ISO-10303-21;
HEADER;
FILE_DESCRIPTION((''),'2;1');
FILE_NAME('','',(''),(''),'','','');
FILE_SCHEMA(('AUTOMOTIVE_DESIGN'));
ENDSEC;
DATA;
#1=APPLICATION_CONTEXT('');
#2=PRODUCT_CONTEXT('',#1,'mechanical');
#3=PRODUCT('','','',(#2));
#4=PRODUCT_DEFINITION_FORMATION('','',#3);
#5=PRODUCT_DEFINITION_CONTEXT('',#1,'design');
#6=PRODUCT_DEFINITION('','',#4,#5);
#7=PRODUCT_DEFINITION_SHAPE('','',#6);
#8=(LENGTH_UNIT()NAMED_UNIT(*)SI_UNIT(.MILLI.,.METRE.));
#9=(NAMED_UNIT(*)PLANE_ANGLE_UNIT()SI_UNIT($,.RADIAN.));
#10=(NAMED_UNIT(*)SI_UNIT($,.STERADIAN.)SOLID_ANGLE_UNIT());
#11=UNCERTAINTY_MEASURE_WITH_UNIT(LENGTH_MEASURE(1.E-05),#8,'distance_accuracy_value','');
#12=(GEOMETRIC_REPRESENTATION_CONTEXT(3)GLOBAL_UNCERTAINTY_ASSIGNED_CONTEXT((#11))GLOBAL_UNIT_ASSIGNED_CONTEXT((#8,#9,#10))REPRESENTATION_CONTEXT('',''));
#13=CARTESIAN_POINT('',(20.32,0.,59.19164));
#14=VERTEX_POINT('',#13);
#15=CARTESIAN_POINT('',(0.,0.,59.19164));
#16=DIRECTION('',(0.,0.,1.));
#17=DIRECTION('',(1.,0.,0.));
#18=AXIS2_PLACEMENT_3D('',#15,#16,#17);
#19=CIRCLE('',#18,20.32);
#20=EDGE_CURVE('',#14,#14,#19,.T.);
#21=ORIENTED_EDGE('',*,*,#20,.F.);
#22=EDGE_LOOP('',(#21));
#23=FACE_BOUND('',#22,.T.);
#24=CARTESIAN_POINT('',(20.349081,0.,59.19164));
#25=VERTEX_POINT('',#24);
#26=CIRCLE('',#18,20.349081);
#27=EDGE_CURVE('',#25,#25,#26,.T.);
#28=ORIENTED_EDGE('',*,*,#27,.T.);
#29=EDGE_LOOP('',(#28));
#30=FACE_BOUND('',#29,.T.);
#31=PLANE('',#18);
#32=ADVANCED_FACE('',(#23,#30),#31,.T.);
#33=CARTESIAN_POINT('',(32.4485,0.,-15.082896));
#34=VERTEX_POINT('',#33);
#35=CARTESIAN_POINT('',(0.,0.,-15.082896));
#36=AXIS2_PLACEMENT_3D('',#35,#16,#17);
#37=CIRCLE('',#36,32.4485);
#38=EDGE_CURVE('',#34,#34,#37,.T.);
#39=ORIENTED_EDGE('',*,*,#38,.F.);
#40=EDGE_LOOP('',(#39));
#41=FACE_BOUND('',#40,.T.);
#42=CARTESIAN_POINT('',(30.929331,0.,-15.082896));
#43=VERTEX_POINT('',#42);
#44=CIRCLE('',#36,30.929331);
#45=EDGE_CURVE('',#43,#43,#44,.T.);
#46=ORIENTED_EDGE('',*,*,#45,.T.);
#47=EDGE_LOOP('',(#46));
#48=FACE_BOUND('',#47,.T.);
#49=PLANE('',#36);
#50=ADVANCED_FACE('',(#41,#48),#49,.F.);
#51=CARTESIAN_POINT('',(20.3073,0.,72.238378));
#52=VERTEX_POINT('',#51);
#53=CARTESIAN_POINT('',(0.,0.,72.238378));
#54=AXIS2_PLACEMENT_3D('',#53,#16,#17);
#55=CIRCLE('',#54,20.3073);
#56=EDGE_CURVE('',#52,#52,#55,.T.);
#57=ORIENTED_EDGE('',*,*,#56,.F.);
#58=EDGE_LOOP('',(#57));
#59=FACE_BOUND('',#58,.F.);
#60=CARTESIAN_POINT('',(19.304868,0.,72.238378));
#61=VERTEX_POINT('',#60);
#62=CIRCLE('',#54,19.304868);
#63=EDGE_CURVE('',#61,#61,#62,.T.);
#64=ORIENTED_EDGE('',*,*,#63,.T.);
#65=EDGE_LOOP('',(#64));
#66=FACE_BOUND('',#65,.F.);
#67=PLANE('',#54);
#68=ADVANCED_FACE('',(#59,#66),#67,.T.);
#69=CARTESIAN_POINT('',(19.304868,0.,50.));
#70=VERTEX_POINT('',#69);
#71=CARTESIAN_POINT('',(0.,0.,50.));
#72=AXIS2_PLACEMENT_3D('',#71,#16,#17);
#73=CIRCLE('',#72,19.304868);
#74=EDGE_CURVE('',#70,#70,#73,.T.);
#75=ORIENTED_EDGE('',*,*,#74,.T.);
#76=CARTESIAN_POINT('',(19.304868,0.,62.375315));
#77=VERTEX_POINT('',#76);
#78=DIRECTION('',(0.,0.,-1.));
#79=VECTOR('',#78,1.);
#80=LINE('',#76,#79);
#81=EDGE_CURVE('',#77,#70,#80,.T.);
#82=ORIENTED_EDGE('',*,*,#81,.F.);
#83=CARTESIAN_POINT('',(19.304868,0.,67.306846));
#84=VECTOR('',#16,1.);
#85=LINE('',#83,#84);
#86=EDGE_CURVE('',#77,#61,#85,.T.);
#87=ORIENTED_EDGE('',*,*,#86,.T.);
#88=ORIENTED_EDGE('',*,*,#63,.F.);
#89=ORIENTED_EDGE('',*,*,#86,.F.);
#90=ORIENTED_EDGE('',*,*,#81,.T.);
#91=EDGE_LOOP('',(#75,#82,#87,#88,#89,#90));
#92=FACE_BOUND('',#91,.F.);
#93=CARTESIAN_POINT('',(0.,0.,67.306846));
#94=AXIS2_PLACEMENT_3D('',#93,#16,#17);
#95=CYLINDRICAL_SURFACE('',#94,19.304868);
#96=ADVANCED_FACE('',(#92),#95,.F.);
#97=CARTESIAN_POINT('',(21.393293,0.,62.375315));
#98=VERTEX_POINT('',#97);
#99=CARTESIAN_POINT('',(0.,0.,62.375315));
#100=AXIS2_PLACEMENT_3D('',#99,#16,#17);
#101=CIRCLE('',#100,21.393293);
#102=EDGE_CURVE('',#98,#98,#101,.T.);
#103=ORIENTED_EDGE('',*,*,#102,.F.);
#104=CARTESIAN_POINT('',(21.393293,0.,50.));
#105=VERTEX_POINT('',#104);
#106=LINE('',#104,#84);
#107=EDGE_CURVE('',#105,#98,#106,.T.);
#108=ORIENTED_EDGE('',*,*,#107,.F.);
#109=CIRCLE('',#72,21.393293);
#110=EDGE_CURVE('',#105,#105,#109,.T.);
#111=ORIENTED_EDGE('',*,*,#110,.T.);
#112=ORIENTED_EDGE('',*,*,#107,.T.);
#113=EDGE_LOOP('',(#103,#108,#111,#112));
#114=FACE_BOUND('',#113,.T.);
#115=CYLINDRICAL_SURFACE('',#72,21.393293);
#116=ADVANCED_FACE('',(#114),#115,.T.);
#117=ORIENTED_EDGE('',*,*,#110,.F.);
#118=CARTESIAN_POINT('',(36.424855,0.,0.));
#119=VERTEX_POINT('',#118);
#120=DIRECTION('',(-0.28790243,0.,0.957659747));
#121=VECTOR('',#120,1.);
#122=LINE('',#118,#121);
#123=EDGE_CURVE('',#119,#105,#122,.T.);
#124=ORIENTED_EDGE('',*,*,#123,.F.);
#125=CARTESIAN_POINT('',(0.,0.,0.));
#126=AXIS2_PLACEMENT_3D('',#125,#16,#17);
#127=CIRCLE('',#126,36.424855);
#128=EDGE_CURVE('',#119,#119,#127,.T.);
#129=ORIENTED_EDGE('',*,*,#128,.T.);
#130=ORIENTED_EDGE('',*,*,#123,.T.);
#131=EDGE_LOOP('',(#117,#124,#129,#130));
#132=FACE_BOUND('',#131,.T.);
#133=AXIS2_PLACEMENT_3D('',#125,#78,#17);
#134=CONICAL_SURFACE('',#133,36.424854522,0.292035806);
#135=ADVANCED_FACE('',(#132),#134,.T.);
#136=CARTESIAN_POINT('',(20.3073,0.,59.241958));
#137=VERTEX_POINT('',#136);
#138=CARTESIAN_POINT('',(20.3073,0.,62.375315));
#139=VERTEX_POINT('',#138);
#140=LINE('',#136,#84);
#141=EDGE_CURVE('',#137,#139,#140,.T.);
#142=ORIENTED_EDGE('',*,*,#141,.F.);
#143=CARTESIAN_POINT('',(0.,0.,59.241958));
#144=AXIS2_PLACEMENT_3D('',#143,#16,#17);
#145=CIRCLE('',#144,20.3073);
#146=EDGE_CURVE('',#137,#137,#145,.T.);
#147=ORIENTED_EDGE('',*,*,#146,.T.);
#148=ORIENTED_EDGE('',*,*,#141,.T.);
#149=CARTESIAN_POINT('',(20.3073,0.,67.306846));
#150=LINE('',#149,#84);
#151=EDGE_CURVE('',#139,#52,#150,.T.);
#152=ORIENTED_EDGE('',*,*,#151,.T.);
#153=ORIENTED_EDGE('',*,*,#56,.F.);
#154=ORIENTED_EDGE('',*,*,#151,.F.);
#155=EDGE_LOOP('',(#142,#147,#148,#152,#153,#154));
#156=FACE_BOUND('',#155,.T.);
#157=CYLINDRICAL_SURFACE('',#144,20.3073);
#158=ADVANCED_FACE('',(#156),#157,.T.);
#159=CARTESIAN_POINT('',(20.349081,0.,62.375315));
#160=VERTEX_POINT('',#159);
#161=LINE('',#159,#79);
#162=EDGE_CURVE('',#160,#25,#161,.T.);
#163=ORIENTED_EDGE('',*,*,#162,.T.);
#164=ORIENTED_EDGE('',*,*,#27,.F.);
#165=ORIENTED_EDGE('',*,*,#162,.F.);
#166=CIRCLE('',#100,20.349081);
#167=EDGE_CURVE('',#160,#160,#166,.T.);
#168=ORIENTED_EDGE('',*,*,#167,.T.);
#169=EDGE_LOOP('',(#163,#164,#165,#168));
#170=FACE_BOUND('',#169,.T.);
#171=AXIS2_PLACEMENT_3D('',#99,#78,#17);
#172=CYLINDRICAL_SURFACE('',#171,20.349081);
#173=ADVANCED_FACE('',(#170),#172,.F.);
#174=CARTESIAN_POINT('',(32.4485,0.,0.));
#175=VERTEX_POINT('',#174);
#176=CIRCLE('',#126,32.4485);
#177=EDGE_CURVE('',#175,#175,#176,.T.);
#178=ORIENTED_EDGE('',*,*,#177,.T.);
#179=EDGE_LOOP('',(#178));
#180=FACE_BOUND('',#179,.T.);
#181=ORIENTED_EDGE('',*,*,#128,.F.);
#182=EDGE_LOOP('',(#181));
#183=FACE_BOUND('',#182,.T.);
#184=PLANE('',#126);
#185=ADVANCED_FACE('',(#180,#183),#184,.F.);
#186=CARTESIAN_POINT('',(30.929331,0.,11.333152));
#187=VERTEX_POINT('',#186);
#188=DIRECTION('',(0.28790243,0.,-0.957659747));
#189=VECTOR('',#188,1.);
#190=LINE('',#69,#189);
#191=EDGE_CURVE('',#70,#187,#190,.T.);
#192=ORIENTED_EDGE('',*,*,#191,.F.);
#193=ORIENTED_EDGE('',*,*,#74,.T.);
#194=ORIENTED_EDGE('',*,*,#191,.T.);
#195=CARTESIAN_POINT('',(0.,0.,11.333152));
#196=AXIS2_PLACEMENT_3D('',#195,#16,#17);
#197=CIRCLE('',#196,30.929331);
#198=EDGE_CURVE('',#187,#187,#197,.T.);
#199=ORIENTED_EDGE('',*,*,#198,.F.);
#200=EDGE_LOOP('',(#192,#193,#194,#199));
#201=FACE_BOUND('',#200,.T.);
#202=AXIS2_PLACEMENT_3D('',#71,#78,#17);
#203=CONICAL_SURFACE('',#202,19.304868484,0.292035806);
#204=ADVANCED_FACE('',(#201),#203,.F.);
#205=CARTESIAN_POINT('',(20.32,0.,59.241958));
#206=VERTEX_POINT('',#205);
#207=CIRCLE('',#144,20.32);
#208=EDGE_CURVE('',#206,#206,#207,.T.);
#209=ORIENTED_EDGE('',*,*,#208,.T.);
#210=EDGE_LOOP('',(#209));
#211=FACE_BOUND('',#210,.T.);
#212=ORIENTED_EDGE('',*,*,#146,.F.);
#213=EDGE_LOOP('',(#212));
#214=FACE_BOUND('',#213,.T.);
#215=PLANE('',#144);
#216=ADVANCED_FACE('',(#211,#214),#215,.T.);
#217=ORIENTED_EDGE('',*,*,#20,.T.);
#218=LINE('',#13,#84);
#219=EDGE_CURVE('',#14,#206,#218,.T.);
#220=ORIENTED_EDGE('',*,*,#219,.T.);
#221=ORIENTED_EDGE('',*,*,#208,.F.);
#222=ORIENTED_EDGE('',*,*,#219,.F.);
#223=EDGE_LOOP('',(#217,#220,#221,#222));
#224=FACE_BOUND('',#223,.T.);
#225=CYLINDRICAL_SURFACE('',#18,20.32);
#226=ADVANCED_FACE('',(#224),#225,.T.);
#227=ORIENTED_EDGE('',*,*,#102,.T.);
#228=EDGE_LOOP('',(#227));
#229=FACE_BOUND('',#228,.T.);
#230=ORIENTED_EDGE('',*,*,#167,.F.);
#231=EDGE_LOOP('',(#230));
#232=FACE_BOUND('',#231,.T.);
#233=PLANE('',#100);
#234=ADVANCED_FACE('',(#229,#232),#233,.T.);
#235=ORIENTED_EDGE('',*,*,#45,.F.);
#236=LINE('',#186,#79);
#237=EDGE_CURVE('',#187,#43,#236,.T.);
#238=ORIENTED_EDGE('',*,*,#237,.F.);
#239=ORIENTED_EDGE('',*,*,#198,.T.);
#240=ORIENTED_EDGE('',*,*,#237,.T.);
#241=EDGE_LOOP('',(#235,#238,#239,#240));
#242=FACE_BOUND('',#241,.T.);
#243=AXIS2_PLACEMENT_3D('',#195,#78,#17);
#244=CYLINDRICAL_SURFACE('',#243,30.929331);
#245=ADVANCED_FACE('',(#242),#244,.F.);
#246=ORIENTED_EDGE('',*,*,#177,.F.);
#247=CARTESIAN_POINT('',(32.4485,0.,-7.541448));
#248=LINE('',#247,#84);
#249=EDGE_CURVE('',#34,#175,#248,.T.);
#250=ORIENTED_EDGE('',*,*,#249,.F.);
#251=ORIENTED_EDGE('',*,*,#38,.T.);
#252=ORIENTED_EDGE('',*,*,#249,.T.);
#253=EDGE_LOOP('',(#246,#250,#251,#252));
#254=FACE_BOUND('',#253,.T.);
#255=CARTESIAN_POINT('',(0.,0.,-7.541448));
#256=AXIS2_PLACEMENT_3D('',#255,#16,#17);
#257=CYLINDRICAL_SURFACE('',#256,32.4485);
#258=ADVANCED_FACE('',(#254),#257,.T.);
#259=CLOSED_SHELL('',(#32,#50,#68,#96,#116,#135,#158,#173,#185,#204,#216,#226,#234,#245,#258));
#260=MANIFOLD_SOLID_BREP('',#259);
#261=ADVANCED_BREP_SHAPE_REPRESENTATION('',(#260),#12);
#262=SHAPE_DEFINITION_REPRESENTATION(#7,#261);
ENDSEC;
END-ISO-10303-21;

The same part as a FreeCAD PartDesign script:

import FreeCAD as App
import Part
import Sketcher

V = App.Vector
Q = App.Units.Quantity

doc = App.newDocument("Part")
body = doc.addObject("PartDesign::Body", "Body")

# Sketch on XZ plane
sketch1 = doc.addObject("Sketcher::SketchObject", "Sketch")
body.addObject(sketch1)
sketch1.AttachmentSupport = (doc.XZ_Plane, [""])
sketch1.MapMode = "FlatFace"
sketch1.addGeometry(Part.LineSegment(V(36.425, 0, 0), V(21.393, 50, 0)), False)
sketch1.addGeometry(Part.LineSegment(V(21.393, 50, 0), V(21.393, 62.375, 0)), False)
sketch1.addGeometry(Part.LineSegment(V(21.393, 62.375, 0), V(20.349, 62.375, 0)), False)
sketch1.addGeometry(Part.LineSegment(V(20.349, 62.375, 0), V(20.349, 59.192, 0)), False)
sketch1.addGeometry(Part.LineSegment(V(20.349, 59.192, 0), V(20.32, 59.192, 0)), False)
sketch1.addGeometry(Part.LineSegment(V(20.32, 59.192, 0), V(20.32, 59.242, 0)), False)
sketch1.addGeometry(Part.LineSegment(V(20.32, 59.242, 0), V(20.307, 59.242, 0)), False)
sketch1.addGeometry(Part.LineSegment(V(20.307, 59.242, 0), V(20.307, 62.375, 0)), False)
sketch1.addGeometry(Part.LineSegment(V(20.307, 62.375, 0), V(20.307, 72.238, 0)), False)
sketch1.addGeometry(Part.LineSegment(V(20.307, 72.238, 0), V(19.305, 72.238, 0)), False)
sketch1.addGeometry(Part.LineSegment(V(19.305, 72.238, 0), V(19.305, 62.375, 0)), False)
sketch1.addGeometry(Part.LineSegment(V(19.305, 62.375, 0), V(19.305, 50, 0)), False)
sketch1.addGeometry(Part.LineSegment(V(19.305, 50, 0), V(30.929, 11.333, 0)), False)
sketch1.addGeometry(Part.LineSegment(V(30.929, 11.333, 0), V(30.929, -15.083, 0)), False)
sketch1.addGeometry(Part.LineSegment(V(30.929, -15.083, 0), V(32.449, -15.083, 0)), False)
sketch1.addGeometry(Part.LineSegment(V(32.449, -15.083, 0), V(32.449, 0, 0)), False)
sketch1.addGeometry(Part.LineSegment(V(32.449, 0, 0), V(36.425, 0, 0)), False)
sketch1.addConstraint(Sketcher.Constraint("Coincident", 0, 2, 1, 1))
sketch1.addConstraint(Sketcher.Constraint("Coincident", 1, 2, 2, 1))
sketch1.addConstraint(Sketcher.Constraint("Coincident", 2, 2, 3, 1))
sketch1.addConstraint(Sketcher.Constraint("Coincident", 3, 2, 4, 1))
sketch1.addConstraint(Sketcher.Constraint("Coincident", 4, 2, 5, 1))
sketch1.addConstraint(Sketcher.Constraint("Coincident", 5, 2, 6, 1))
sketch1.addConstraint(Sketcher.Constraint("Coincident", 6, 2, 7, 1))
sketch1.addConstraint(Sketcher.Constraint("Coincident", 7, 2, 8, 1))
sketch1.addConstraint(Sketcher.Constraint("Coincident", 8, 2, 9, 1))
sketch1.addConstraint(Sketcher.Constraint("Coincident", 9, 2, 10, 1))
sketch1.addConstraint(Sketcher.Constraint("Coincident", 10, 2, 11, 1))
sketch1.addConstraint(Sketcher.Constraint("Coincident", 11, 2, 12, 1))
sketch1.addConstraint(Sketcher.Constraint("Coincident", 12, 2, 13, 1))
sketch1.addConstraint(Sketcher.Constraint("Coincident", 13, 2, 14, 1))
sketch1.addConstraint(Sketcher.Constraint("Coincident", 14, 2, 15, 1))
sketch1.addConstraint(Sketcher.Constraint("Coincident", 15, 2, 16, 1))
sketch1.addConstraint(Sketcher.Constraint("Coincident", 16, 2, 0, 1))
sketch1.addConstraint(Sketcher.Constraint("Vertical", 1))
sketch1.addConstraint(Sketcher.Constraint("Horizontal", 2))
sketch1.addConstraint(Sketcher.Constraint("Vertical", 3))
sketch1.addConstraint(Sketcher.Constraint("Horizontal", 4))
sketch1.addConstraint(Sketcher.Constraint("Vertical", 5))
sketch1.addConstraint(Sketcher.Constraint("Horizontal", 6))
sketch1.addConstraint(Sketcher.Constraint("Vertical", 7))
sketch1.addConstraint(Sketcher.Constraint("Vertical", 8))
sketch1.addConstraint(Sketcher.Constraint("Horizontal", 9))
sketch1.addConstraint(Sketcher.Constraint("Vertical", 10))
sketch1.addConstraint(Sketcher.Constraint("Vertical", 11))
sketch1.addConstraint(Sketcher.Constraint("Vertical", 13))
sketch1.addConstraint(Sketcher.Constraint("Horizontal", 14))
sketch1.addConstraint(Sketcher.Constraint("Vertical", 15))
sketch1.addConstraint(Sketcher.Constraint("Horizontal", 16))
sketch1.addConstraint(Sketcher.Constraint("PointOnObject", 15, 2, -1))
sketch1.addConstraint(Sketcher.Constraint("Parallel", 0, 12))
sketch1.addConstraint(Sketcher.Constraint("Horizontal", 2, 2, 7, 2))
sketch1.addConstraint(Sketcher.Constraint("Horizontal", 7, 2, 10, 2))
sketch1.addConstraint(Sketcher.Constraint("Horizontal", 0, 2, 11, 2))
sketch1.addConstraint(Sketcher.Constraint("DistanceY", -1, 1, 0, 2, Q("50 mm")))
sketch1.addConstraint(Sketcher.Constraint("DistanceX", -1, 1, 4, 2, Q("20.32 mm")))
sketch1.addConstraint(Sketcher.Constraint("DistanceX", 6, 2, 6, 1, Q("0.0127 mm")))
sketch1.addConstraint(Sketcher.Constraint("DistanceX", 4, 2, 4, 1, Q("0.029081 mm")))
sketch1.addConstraint(Sketcher.Constraint("DistanceX", 9, 2, 9, 1, Q("1.002432 mm")))
sketch1.addConstraint(Sketcher.Constraint("DistanceX", 14, 1, 14, 2, Q("1.519169 mm")))
sketch1.addConstraint(Sketcher.Constraint("DistanceX", -1, 1, 14, 2, Q("32.4485 mm")))
sketch1.addConstraint(Sketcher.Constraint("Distance", 0, Q("52.21061 mm")))
sketch1.addConstraint(Sketcher.Constraint("DistanceX", 2, 2, 2, 1, Q("1.044212 mm")))
sketch1.addConstraint(Sketcher.Constraint("DistanceY", 1, 1, 1, 2, Q("12.375315 mm")))
sketch1.addConstraint(Sketcher.Constraint("DistanceY", 3, 2, 3, 1, Q("3.183674 mm")))
sketch1.addConstraint(Sketcher.Constraint("DistanceY", 5, 1, 5, 2, Q("0.050317 mm")))
sketch1.addConstraint(Sketcher.Constraint("DistanceY", 8, 1, 8, 2, Q("9.863064 mm")))
sketch1.addConstraint(Sketcher.Constraint("DistanceY", 13, 2, 13, 1, Q("26.416047 mm")))
revolution = doc.addObject("PartDesign::Revolution", "Revolution")
body.addObject(revolution)
revolution.Profile = sketch1
revolution.ReferenceAxis = (sketch1, ["V_Axis"])
revolution.Angle = 360

doc.recompute()
